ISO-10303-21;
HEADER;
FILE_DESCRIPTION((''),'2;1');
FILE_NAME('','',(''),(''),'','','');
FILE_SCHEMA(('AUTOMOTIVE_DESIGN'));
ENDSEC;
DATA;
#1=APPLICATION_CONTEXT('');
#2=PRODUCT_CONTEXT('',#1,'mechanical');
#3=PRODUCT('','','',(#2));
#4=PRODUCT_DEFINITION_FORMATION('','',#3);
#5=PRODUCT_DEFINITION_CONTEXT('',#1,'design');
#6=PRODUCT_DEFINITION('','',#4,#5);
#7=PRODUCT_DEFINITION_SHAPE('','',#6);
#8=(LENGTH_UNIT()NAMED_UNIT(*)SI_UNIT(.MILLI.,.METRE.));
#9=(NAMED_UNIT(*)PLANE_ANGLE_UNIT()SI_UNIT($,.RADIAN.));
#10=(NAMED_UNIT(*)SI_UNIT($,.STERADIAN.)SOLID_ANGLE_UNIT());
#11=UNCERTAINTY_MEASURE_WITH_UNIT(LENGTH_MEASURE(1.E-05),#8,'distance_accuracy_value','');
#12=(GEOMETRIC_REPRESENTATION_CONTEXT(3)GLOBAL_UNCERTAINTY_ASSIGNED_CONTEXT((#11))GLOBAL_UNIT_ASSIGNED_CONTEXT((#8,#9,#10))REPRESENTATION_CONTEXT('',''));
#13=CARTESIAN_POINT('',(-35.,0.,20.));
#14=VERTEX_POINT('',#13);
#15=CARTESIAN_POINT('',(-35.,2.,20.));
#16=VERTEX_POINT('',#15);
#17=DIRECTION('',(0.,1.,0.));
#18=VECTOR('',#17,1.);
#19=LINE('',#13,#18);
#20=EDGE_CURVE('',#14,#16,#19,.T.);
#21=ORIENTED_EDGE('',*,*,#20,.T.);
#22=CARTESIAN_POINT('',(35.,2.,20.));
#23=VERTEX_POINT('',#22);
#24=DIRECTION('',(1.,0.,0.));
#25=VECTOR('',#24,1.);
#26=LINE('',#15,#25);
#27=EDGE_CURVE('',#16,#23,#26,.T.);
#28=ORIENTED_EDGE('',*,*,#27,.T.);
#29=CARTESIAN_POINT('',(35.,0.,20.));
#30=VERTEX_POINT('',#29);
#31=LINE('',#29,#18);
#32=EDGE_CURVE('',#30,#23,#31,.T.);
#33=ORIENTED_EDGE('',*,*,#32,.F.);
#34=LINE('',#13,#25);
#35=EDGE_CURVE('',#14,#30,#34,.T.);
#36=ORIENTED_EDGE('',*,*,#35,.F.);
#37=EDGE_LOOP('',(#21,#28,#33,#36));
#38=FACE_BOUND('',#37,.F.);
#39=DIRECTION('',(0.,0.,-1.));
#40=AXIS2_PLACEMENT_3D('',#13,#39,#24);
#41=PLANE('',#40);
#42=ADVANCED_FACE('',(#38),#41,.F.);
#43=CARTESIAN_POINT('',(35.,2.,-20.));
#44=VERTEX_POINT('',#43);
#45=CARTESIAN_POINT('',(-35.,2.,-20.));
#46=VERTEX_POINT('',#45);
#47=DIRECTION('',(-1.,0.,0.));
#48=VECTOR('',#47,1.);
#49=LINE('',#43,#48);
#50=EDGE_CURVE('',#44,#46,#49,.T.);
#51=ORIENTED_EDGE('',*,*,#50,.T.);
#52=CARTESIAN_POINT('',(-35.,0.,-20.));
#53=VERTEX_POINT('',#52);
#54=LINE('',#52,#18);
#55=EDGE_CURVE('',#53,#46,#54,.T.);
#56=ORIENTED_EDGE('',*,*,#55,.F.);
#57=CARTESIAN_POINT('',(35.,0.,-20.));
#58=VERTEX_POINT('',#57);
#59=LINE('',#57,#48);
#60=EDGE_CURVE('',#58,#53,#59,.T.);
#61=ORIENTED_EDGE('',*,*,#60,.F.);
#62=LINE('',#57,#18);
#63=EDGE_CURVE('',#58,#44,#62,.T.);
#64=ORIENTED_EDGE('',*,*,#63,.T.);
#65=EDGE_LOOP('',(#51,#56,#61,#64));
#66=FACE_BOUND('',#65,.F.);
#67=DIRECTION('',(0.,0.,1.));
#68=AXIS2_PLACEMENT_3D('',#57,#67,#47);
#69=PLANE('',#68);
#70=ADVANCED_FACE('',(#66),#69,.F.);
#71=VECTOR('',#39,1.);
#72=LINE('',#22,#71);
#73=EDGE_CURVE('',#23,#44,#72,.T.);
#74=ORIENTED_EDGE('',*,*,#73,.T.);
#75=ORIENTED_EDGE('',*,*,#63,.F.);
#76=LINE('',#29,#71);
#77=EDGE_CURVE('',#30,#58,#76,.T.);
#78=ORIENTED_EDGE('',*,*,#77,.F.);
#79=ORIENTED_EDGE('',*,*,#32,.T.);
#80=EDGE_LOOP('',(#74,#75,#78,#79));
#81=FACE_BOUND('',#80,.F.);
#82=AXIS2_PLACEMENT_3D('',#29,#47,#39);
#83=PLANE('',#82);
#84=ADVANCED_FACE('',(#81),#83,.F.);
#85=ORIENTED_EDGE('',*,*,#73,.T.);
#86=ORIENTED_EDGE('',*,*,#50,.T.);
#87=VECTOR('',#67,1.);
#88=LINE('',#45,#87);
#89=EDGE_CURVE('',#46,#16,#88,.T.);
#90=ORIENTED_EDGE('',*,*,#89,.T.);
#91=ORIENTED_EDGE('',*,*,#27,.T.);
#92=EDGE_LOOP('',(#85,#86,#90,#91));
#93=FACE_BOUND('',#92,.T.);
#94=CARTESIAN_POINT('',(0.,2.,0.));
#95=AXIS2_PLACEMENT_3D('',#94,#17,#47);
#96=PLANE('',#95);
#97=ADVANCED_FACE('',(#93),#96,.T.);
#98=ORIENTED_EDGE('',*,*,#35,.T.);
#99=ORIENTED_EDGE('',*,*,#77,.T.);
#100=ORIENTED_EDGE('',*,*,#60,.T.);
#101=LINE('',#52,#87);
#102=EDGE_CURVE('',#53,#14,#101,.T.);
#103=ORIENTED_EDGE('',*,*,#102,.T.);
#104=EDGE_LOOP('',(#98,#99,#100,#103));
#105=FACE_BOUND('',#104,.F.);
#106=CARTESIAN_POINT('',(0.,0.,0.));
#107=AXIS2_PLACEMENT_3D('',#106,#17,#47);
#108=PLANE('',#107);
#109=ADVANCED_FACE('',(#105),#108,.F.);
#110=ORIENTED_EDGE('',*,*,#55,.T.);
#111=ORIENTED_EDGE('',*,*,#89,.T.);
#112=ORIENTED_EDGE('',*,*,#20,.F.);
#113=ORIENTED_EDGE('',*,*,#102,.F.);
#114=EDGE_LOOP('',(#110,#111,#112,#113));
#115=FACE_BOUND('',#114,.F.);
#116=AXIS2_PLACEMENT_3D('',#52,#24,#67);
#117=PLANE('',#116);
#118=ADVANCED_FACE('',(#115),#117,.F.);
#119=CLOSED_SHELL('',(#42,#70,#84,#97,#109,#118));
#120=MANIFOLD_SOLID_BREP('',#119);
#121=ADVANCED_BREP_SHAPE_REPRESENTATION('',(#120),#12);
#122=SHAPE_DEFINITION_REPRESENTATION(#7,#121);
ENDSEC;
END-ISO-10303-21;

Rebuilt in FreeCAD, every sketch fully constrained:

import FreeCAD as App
import Part
import Sketcher
from FreeCAD import Vector
Q = App.Units.Quantity


def add_polygon(sketch, points):
    """Adds a closed chain of lines whose ends are joined by coincident constraints."""
    first, n = sketch.GeometryCount, len(points)
    for a, b in zip(points, points[1:] + points[:1]):
        sketch.addGeometry(Part.LineSegment(App.Vector(*a, 0), App.Vector(*b, 0)), False)
    for i in range(n):
        sketch.addConstraint(Sketcher.Constraint("Coincident", first + i, 2, first + (i + 1) % n, 1))

doc = App.newDocument("Part")
body = doc.addObject("PartDesign::Body", "Body")

sketch1 = body.newObject("Sketcher::SketchObject", "Sketch")
sketch1.AttachmentSupport = (doc.getObject("XZ_Plane"), [""])
sketch1.MapMode = "FlatFace"
add_polygon(sketch1, [(35, 20), (35, -20), (-35, -20), (-35, 20)])
sketch1.addConstraint(Sketcher.Constraint("Vertical", 0))
sketch1.addConstraint(Sketcher.Constraint("Horizontal", 1))
sketch1.addConstraint(Sketcher.Constraint("Vertical", 2))
sketch1.addConstraint(Sketcher.Constraint("Horizontal", 3))
sketch1.addConstraint(Sketcher.Constraint("Symmetric", 0, 2, 2, 2, -1, 1))
sketch1.addConstraint(Sketcher.Constraint("DistanceX", 1, 2, 1, 1, Q("70 mm")))
sketch1.addConstraint(Sketcher.Constraint("DistanceY", 0, 2, 0, 1, Q("40 mm")))
pad1 = body.newObject("PartDesign::Pad", "Pad")
pad1.Profile = sketch1
pad1.Length = 2
pad1.Reversed = True

doc.recompute()
